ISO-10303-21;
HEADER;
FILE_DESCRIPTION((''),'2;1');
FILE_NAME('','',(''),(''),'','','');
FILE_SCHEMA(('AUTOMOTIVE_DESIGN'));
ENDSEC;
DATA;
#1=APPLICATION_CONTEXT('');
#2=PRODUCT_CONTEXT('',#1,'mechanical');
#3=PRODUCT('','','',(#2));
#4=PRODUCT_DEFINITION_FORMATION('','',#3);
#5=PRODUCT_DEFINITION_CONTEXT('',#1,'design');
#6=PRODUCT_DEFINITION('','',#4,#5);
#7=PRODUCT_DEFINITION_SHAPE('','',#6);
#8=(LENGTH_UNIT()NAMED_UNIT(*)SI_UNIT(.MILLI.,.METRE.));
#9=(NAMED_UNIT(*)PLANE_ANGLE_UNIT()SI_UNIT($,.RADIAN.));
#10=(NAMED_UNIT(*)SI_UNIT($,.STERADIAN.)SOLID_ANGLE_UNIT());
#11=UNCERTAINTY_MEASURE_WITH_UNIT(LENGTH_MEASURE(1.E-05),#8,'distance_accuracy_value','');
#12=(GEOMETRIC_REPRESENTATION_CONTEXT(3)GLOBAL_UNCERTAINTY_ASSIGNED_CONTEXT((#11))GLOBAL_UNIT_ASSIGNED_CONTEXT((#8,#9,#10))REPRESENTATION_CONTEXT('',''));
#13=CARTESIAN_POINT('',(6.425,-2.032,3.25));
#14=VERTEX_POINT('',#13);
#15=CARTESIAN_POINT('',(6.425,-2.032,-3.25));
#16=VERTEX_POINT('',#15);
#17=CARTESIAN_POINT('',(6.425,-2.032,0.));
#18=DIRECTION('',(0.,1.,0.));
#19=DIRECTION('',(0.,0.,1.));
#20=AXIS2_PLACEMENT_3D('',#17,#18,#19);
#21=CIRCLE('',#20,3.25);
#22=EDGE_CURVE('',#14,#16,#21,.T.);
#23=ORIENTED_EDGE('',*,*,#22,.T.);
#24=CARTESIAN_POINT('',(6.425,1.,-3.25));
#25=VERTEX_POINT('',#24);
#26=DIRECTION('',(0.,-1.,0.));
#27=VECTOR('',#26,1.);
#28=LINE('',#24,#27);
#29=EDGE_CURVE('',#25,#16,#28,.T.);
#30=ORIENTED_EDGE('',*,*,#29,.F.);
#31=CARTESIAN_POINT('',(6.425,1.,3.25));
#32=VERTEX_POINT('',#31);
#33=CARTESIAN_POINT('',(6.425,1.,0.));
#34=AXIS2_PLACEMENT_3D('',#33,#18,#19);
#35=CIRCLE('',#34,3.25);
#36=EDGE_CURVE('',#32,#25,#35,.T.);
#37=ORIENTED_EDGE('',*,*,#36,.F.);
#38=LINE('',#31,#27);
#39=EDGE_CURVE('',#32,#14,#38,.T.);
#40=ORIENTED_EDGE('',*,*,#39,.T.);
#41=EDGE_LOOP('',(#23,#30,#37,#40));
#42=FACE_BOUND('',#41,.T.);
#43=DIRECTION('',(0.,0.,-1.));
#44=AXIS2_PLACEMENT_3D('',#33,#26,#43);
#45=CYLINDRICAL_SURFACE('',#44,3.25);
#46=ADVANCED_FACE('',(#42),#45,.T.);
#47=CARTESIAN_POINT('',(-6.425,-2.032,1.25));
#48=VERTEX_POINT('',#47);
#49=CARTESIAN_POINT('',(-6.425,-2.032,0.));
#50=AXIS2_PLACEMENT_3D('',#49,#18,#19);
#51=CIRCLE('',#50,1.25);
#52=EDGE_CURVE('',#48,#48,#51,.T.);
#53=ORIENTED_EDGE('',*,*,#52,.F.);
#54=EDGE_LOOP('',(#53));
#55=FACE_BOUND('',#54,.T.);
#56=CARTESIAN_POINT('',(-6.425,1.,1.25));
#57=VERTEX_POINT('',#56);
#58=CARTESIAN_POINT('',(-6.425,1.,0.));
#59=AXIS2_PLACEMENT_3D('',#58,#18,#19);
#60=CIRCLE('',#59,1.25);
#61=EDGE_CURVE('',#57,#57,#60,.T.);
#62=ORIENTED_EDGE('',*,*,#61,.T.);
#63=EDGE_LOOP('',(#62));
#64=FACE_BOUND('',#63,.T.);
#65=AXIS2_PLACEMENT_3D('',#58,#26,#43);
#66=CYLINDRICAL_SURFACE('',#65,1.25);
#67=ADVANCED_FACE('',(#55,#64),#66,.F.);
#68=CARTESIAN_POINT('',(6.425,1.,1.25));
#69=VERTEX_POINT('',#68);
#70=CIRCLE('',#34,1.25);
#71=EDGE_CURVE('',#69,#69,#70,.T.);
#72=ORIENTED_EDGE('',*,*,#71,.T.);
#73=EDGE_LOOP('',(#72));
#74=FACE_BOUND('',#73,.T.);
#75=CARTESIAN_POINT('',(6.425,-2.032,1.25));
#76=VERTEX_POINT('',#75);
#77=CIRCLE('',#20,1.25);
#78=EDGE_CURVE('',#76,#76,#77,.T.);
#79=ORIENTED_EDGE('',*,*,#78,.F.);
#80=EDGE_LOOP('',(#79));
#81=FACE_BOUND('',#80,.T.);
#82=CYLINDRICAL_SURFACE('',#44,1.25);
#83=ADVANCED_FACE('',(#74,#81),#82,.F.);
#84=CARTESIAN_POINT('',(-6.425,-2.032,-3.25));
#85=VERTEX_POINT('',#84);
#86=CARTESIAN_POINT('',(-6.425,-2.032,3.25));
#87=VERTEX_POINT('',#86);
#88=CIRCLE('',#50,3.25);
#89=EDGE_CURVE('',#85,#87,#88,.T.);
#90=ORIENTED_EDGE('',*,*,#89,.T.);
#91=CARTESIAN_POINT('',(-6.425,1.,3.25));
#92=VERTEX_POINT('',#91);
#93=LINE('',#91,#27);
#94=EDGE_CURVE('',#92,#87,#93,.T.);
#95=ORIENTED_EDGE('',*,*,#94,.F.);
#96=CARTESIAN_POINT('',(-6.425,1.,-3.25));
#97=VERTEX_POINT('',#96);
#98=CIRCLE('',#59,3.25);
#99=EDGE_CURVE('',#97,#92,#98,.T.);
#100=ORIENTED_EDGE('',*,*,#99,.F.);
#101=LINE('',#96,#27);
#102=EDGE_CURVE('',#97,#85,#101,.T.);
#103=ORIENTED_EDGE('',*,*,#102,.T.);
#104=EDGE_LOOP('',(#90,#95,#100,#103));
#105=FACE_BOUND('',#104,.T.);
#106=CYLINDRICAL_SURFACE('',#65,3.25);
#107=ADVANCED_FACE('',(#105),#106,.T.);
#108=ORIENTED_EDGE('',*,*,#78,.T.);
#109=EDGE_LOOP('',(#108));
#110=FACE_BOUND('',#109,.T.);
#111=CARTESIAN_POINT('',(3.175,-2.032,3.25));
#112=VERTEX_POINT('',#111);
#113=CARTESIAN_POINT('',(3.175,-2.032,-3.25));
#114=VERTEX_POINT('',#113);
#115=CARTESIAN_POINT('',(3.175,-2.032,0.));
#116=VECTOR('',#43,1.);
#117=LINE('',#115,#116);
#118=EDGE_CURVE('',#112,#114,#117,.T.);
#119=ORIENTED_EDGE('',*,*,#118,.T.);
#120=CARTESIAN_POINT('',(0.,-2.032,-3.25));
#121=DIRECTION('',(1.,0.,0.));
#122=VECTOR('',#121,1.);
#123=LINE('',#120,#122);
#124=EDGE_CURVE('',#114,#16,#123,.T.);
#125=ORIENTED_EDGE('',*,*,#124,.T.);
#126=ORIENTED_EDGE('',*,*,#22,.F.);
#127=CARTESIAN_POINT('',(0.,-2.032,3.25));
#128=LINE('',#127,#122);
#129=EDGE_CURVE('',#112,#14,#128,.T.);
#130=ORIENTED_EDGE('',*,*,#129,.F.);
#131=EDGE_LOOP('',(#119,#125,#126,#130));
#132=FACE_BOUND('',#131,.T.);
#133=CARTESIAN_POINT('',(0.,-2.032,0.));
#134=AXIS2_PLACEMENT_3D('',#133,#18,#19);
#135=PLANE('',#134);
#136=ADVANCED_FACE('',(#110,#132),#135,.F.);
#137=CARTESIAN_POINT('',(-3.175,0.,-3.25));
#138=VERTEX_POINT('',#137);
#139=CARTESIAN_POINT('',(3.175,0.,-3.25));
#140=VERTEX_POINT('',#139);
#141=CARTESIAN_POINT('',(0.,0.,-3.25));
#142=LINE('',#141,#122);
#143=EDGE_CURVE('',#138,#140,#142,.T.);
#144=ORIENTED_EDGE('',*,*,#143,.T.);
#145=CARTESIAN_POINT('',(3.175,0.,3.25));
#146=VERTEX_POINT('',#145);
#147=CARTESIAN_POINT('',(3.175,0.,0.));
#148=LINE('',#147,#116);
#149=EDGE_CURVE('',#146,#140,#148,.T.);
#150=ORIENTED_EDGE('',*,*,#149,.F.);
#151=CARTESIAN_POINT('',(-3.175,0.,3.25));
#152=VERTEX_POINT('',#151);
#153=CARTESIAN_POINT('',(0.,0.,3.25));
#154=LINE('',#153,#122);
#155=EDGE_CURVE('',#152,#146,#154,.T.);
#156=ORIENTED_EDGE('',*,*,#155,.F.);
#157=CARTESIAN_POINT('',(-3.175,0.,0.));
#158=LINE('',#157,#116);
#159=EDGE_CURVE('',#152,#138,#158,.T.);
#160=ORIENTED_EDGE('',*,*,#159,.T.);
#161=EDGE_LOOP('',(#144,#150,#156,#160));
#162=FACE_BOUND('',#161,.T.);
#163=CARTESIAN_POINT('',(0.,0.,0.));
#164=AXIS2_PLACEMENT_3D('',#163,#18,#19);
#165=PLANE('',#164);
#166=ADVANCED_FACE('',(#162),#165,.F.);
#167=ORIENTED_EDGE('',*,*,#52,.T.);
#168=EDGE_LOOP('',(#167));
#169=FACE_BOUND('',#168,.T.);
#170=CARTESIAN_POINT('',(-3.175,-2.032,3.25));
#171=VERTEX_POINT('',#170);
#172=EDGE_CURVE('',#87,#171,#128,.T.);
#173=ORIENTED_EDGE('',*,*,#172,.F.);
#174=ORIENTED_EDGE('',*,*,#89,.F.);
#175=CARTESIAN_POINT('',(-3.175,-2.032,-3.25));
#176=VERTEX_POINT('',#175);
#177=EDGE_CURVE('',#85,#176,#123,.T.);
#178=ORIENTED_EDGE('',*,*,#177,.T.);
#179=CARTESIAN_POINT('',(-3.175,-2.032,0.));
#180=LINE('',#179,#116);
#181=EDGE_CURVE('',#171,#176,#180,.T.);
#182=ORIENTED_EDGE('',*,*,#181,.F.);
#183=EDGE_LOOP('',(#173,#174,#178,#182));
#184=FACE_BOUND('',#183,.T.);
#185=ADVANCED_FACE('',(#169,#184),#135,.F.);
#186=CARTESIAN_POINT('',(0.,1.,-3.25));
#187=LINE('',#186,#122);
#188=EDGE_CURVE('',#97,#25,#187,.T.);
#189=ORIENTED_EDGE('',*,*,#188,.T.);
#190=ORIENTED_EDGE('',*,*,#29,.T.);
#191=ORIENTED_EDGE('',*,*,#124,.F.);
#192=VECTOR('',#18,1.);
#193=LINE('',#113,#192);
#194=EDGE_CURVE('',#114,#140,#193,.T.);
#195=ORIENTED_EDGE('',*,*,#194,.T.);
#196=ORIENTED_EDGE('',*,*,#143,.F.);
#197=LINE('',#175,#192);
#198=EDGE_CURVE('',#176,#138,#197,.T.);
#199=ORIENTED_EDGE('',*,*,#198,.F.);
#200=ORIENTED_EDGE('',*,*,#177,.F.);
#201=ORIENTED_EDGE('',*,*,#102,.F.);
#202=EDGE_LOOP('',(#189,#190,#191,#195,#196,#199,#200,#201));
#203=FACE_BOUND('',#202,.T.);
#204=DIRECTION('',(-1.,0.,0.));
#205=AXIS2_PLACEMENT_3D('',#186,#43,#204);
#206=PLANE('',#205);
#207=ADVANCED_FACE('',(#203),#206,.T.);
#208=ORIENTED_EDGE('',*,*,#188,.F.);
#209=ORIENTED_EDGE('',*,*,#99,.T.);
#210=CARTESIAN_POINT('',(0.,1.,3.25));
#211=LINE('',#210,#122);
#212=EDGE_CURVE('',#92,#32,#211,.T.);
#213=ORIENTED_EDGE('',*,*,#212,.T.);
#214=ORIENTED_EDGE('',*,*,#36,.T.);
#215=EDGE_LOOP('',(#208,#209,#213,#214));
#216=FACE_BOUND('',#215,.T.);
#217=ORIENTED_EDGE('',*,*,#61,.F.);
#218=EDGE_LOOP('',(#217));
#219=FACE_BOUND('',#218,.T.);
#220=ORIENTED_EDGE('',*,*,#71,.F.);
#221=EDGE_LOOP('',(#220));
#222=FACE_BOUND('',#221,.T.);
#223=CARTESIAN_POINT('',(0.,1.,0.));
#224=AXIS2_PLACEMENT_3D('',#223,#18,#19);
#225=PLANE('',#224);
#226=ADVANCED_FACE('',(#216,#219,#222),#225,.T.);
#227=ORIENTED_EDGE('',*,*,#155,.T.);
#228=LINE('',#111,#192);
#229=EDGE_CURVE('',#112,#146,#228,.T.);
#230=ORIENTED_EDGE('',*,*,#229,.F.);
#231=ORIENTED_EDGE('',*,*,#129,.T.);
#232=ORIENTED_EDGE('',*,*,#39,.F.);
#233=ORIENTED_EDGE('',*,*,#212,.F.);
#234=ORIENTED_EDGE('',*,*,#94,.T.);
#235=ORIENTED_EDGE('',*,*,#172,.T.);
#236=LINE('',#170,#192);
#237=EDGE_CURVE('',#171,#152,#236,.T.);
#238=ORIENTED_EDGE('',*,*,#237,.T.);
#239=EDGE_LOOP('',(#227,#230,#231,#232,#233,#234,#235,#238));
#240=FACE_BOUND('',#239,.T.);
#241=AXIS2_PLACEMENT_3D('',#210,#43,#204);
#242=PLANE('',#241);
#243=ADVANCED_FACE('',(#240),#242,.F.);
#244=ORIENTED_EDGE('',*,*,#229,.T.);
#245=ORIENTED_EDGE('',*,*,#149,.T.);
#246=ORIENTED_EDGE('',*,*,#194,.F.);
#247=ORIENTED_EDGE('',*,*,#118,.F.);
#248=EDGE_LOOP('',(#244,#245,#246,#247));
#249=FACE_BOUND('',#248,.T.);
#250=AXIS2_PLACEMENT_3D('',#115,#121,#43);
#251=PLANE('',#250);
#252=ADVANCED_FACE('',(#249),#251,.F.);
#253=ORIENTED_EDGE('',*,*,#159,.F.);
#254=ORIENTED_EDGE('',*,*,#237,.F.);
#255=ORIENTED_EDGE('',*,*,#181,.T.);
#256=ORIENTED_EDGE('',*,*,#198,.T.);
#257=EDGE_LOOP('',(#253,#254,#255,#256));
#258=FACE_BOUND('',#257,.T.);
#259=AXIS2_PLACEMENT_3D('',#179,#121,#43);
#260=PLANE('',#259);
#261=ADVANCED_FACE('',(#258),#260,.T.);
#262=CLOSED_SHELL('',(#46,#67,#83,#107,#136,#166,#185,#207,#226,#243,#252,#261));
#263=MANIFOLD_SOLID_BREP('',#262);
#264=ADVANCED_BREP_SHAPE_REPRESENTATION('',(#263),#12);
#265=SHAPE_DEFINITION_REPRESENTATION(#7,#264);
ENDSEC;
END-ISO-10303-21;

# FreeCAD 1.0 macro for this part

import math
import FreeCAD as App
import Part
import Sketcher
Q = App.Units.Quantity

doc = App.newDocument("Part")
body = doc.addObject("PartDesign::Body", "Body")

sketch1 = doc.addObject("Sketcher::SketchObject", "Sketch")
body.addObject(sketch1)
sketch1.AttachmentSupport = (doc.XZ_Plane, [""])
sketch1.MapMode = "FlatFace"
sketch1.addGeometry(Part.ArcOfCircle(Part.Circle(App.Vector(-6.4, 0, 0), App.Vector(0, 0, 1), 3.2), math.radians(90), math.radians(270)), False)
sketch1.addGeometry(Part.LineSegment(App.Vector(-6.4, 3.2, 0), App.Vector(6.4, 3.2, 0)), False)
sketch1.addGeometry(Part.ArcOfCircle(Part.Circle(App.Vector(6.4, 0, 0), App.Vector(0, 0, 1), 3.2), math.radians(-90), math.radians(90)), False)
sketch1.addGeometry(Part.LineSegment(App.Vector(6.4, -3.2, 0), App.Vector(-6.4, -3.2, 0)), False)
sketch1.addGeometry(Part.Circle(App.Vector(-6.4, 0, 0), App.Vector(0, 0, 1), 1.2), False)
sketch1.addGeometry(Part.Circle(App.Vector(6.4, 0, 0), App.Vector(0, 0, 1), 1.2), False)
sketch1.addConstraint(Sketcher.Constraint("Tangent", 0, 1, 1, 1))
sketch1.addConstraint(Sketcher.Constraint("Tangent", 1, 2, 2, 2))
sketch1.addConstraint(Sketcher.Constraint("Tangent", 2, 1, 3, 1))
sketch1.addConstraint(Sketcher.Constraint("Tangent", 3, 2, 0, 2))
sketch1.addConstraint(Sketcher.Constraint("Horizontal", 1))
sketch1.addConstraint(Sketcher.Constraint("Horizontal", 3))
sketch1.addConstraint(Sketcher.Constraint("Coincident", 4, 3, 0, 3))
sketch1.addConstraint(Sketcher.Constraint("Coincident", 5, 3, 2, 3))
sketch1.addConstraint(Sketcher.Constraint("Equal", 4, 5))
sketch1.addConstraint(Sketcher.Constraint("Symmetric", 0, 3, 2, 3, -1, 1))
sketch1.addConstraint(Sketcher.Constraint("Diameter", 4, Q("2.5 mm")))
sketch1.addConstraint(Sketcher.Constraint("Radius", 0, Q("3.25 mm")))
sketch1.addConstraint(Sketcher.Constraint("DistanceX", 1, 1, 1, 2, Q("12.85 mm")))
pad1 = doc.addObject("PartDesign::Pad", "Pad")
body.addObject(pad1)
pad1.Profile = sketch1
pad1.Length = 1
pad1.Reversed = True

sketch2 = doc.addObject("Sketcher::SketchObject", "Sketch001")
body.addObject(sketch2)
sketch2.AttachmentSupport = (doc.XZ_Plane, [""])
sketch2.MapMode = "FlatFace"
sketch2.AttachmentOffset = App.Placement(App.Vector(0, 0, 2.032), App.Rotation())
sketch2.addGeometry(Part.LineSegment(App.Vector(-3.2, -3.2, 0), App.Vector(-6.4, -3.2, 0)), False)
sketch2.addGeometry(Part.ArcOfCircle(Part.Circle(App.Vector(-6.4, 0, 0), App.Vector(0, 0, 1), 3.2), math.radians(90), math.radians(270)), False)
sketch2.addGeometry(Part.LineSegment(App.Vector(-6.4, 3.2, 0), App.Vector(-3.2, 3.2, 0)), False)
sketch2.addGeometry(Part.LineSegment(App.Vector(-3.2, 3.2, 0), App.Vector(-3.2, -3.2, 0)), False)
sketch2.addGeometry(Part.Circle(App.Vector(-6.4, 0, 0), App.Vector(0, 0, 1), 1.2), False)
sketch2.addGeometry(Part.LineSegment(App.Vector(6.4, -3.2, 0), App.Vector(3.2, -3.2, 0)), False)
sketch2.addGeometry(Part.LineSegment(App.Vector(3.2, -3.2, 0), App.Vector(3.2, 3.2, 0)), False)
sketch2.addGeometry(Part.LineSegment(App.Vector(3.2, 3.2, 0), App.Vector(6.4, 3.2, 0)), False)
sketch2.addGeometry(Part.ArcOfCircle(Part.Circle(App.Vector(6.4, 0, 0), App.Vector(0, 0, 1), 3.2), math.radians(-90), math.radians(90)), False)
sketch2.addGeometry(Part.Circle(App.Vector(6.4, 0, 0), App.Vector(0, 0, 1), 1.2), False)
sketch2.addConstraint(Sketcher.Constraint("Tangent", 0, 2, 1, 2))
sketch2.addConstraint(Sketcher.Constraint("Tangent", 1, 1, 2, 1))
sketch2.addConstraint(Sketcher.Constraint("Coincident", 2, 2, 3, 1))
sketch2.addConstraint(Sketcher.Constraint("Coincident", 3, 2, 0, 1))
sketch2.addConstraint(Sketcher.Constraint("Coincident", 5, 2, 6, 1))
sketch2.addConstraint(Sketcher.Constraint("Coincident", 6, 2, 7, 1))
sketch2.addConstraint(Sketcher.Constraint("Tangent", 7, 2, 8, 2))
sketch2.addConstraint(Sketcher.Constraint("Tangent", 8, 1, 5, 1))
sketch2.addConstraint(Sketcher.Constraint("Horizontal", 0))
sketch2.addConstraint(Sketcher.Constraint("Horizontal", 2))
sketch2.addConstraint(Sketcher.Constraint("Vertical", 3))
sketch2.addConstraint(Sketcher.Constraint("Horizontal", 5))
sketch2.addConstraint(Sketcher.Constraint("Vertical", 6))
sketch2.addConstraint(Sketcher.Constraint("Horizontal", 7))
sketch2.addConstraint(Sketcher.Constraint("Coincident", 4, 3, 1, 3))
sketch2.addConstraint(Sketcher.Constraint("Coincident", 9, 3, 8, 3))
sketch2.addConstraint(Sketcher.Constraint("Equal", 1, 8))
sketch2.addConstraint(Sketcher.Constraint("Equal", 4, 9))
sketch2.addConstraint(Sketcher.Constraint("Symmetric", 1, 3, 8, 3, -1, 1))
sketch2.addConstraint(Sketcher.Constraint("Symmetric", 3, 2, 5, 2, -2))
sketch2.addConstraint(Sketcher.Constraint("Diameter", 4, Q("2.5 mm")))
sketch2.addConstraint(Sketcher.Constraint("Radius", 1, Q("3.25 mm")))
sketch2.addConstraint(Sketcher.Constraint("DistanceX", 0, 2, 0, 1, Q("3.25 mm")))
sketch2.addConstraint(Sketcher.Constraint("DistanceX", 2, 2, 8, 3, Q("9.6 mm")))
pad2 = doc.addObject("PartDesign::Pad", "Pad001")
body.addObject(pad2)
pad2.Profile = sketch2
pad2.Length = 2.032
pad2.Reversed = True

doc.recompute()
